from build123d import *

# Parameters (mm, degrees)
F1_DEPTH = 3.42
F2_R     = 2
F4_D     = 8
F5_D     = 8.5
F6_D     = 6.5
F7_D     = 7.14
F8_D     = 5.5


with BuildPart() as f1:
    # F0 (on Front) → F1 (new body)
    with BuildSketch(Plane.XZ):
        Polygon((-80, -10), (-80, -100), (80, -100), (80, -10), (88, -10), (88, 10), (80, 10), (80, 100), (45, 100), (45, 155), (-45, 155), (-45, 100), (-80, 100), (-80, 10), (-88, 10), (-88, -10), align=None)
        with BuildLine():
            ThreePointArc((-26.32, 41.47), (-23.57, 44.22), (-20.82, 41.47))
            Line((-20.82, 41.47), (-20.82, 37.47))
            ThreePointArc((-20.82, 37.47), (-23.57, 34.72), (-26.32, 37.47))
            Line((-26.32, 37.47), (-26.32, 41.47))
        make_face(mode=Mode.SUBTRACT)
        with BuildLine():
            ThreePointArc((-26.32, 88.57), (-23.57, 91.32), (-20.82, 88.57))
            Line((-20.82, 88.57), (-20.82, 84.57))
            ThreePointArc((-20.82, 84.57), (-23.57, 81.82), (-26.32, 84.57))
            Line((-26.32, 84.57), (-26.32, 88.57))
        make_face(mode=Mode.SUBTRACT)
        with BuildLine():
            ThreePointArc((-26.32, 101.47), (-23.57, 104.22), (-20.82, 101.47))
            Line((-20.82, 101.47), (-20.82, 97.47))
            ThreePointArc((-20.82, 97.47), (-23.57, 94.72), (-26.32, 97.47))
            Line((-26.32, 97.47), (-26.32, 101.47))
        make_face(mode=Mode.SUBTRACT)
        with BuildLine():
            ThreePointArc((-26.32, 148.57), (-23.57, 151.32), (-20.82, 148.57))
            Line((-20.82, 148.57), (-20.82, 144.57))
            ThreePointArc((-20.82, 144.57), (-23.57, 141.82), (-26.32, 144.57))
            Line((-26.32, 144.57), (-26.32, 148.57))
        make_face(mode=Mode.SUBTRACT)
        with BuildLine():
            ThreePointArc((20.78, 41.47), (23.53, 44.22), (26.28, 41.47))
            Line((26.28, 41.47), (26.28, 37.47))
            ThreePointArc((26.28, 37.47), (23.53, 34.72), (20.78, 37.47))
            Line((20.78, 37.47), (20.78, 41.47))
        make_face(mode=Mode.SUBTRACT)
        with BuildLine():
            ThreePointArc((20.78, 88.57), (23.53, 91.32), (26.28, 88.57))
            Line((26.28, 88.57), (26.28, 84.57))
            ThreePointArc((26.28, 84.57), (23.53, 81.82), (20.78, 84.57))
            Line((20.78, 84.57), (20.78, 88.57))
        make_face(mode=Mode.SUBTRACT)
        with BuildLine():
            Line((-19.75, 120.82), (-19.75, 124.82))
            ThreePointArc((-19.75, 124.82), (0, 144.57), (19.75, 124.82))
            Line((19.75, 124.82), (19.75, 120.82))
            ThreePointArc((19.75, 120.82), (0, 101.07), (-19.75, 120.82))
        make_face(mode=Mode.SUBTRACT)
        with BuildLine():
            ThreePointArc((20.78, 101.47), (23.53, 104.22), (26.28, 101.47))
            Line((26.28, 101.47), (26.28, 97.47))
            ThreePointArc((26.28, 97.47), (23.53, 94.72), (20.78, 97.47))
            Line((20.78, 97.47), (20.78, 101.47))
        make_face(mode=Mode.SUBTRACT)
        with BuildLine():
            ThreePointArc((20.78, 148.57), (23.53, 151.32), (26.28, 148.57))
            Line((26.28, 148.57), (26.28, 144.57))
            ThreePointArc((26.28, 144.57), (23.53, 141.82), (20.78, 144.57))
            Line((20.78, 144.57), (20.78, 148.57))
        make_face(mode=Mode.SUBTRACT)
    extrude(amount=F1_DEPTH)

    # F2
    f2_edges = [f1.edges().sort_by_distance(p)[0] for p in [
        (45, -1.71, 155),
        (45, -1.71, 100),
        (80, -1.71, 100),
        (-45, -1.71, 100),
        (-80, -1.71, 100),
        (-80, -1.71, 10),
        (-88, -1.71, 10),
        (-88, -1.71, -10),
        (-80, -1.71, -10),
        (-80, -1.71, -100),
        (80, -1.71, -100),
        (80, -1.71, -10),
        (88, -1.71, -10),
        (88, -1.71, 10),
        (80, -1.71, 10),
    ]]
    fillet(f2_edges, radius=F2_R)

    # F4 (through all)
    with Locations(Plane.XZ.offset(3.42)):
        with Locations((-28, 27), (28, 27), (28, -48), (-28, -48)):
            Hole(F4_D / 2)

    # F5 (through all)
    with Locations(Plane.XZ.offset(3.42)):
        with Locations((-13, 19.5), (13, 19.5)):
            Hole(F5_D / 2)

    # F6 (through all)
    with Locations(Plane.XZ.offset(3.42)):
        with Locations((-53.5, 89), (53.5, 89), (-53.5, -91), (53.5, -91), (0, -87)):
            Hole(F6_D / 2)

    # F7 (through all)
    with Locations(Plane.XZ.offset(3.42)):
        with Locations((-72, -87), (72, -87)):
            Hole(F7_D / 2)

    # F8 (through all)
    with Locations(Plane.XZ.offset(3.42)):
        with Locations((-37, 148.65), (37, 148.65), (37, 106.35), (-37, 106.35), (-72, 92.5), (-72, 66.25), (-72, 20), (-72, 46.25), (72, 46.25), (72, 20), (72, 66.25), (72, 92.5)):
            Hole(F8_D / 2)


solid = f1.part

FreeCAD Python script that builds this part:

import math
import FreeCAD as App
import Part
import Sketcher

V = App.Vector


def edges_at(feature, points):
    """Names of the edges that pass closest to the given points."""
    edges = feature.Shape.Edges
    near = lambda p: min(range(len(edges)), key=lambda i: edges[i].distToShape(Part.Vertex(*p))[0])
    return sorted({f"Edge{near(p) + 1}" for p in points})


def add_polygon(sketch, points):
    """Adds a closed chain of lines whose ends are joined by coincident constraints."""
    first, n = sketch.GeometryCount, len(points)
    for a, b in zip(points, points[1:] + points[:1]):
        sketch.addGeometry(Part.LineSegment(App.Vector(*a, 0), App.Vector(*b, 0)), False)
    for i in range(n):
        sketch.addConstraint(Sketcher.Constraint("Coincident", first + i, 2, first + (i + 1) % n, 1))

doc = App.newDocument("Part")
body = doc.addObject("PartDesign::Body", "Body")

# Sketch on XZ plane
sketch1 = body.newObject("Sketcher::SketchObject", "Sketch")
sketch1.AttachmentSupport = (doc.getObject("XZ_Plane"), [""])
sketch1.MapMode = "FlatFace"
add_polygon(sketch1, [(-80, -10), (-80, -100), (80, -100), (80, -10), (88, -10), (88, 10), (80, 10), (80, 100), (45, 100), (45, 155), (-45, 155), (-45, 100), (-80, 100), (-80, 10), (-88, 10), (-88, -10)])  # lines 0-15
sketch1.addGeometry(Part.LineSegment(V(-26.3, 37.5, 0), V(-26.3, 41.5, 0)), False)  # 16
sketch1.addGeometry(Part.ArcOfCircle(Part.Circle(V(-23.6, 41.5, 0), V(0, 0, 1), 2.8), math.radians(0), math.radians(180)), False)  # 17
sketch1.addGeometry(Part.LineSegment(V(-20.8, 41.5, 0), V(-20.8, 37.5, 0)), False)  # 18
sketch1.addGeometry(Part.ArcOfCircle(Part.Circle(V(-23.6, 37.5, 0), V(0, 0, 1), 2.8), math.radians(180), math.radians(360)), False)  # 19
sketch1.addGeometry(Part.LineSegment(V(-26.3, 84.6, 0), V(-26.3, 88.6, 0)), False)  # 20
sketch1.addGeometry(Part.ArcOfCircle(Part.Circle(V(-23.6, 88.6, 0), V(0, 0, 1), 2.8), math.radians(0), math.radians(180)), False)  # 21
sketch1.addGeometry(Part.LineSegment(V(-20.8, 88.6, 0), V(-20.8, 84.6, 0)), False)  # 22
sketch1.addGeometry(Part.ArcOfCircle(Part.Circle(V(-23.6, 84.6, 0), V(0, 0, 1), 2.8), math.radians(180), math.radians(360)), False)  # 23
sketch1.addGeometry(Part.LineSegment(V(20.8, 37.5, 0), V(20.8, 41.5, 0)), False)  # 24
sketch1.addGeometry(Part.ArcOfCircle(Part.Circle(V(23.5, 41.5, 0), V(0, 0, 1), 2.8), math.radians(0), math.radians(180)), False)  # 25
sketch1.addGeometry(Part.LineSegment(V(26.3, 41.5, 0), V(26.3, 37.5, 0)), False)  # 26
sketch1.addGeometry(Part.ArcOfCircle(Part.Circle(V(23.5, 37.5, 0), V(0, 0, 1), 2.8), math.radians(180), math.radians(360)), False)  # 27
sketch1.addGeometry(Part.LineSegment(V(20.8, 84.6, 0), V(20.8, 88.6, 0)), False)  # 28
sketch1.addGeometry(Part.ArcOfCircle(Part.Circle(V(23.5, 88.6, 0), V(0, 0, 1), 2.8), math.radians(0), math.radians(180)), False)  # 29
sketch1.addGeometry(Part.LineSegment(V(26.3, 88.6, 0), V(26.3, 84.6, 0)), False)  # 30
sketch1.addGeometry(Part.ArcOfCircle(Part.Circle(V(23.5, 84.6, 0), V(0, 0, 1), 2.8), math.radians(180), math.radians(360)), False)  # 31
sketch1.addGeometry(Part.LineSegment(V(-26.3, 97.5, 0), V(-26.3, 101.5, 0)), False)  # 32
sketch1.addGeometry(Part.ArcOfCircle(Part.Circle(V(-23.6, 101.5, 0), V(0, 0, 1), 2.8), math.radians(0), math.radians(180)), False)  # 33
sketch1.addGeometry(Part.LineSegment(V(-20.8, 101.5, 0), V(-20.8, 97.5, 0)), False)  # 34
sketch1.addGeometry(Part.ArcOfCircle(Part.Circle(V(-23.6, 97.5, 0), V(0, 0, 1), 2.8), math.radians(180), math.radians(360)), False)  # 35
sketch1.addGeometry(Part.LineSegment(V(-26.3, 144.6, 0), V(-26.3, 148.6, 0)), False)  # 36
sketch1.addGeometry(Part.ArcOfCircle(Part.Circle(V(-23.6, 148.6, 0), V(0, 0, 1), 2.8), math.radians(0), math.radians(180)), False)  # 37
sketch1.addGeometry(Part.LineSegment(V(-20.8, 148.6, 0), V(-20.8, 144.6, 0)), False)  # 38
sketch1.addGeometry(Part.ArcOfCircle(Part.Circle(V(-23.6, 144.6, 0), V(0, 0, 1), 2.8), math.radians(180), math.radians(360)), False)  # 39
sketch1.addGeometry(Part.LineSegment(V(20.8, 97.5, 0), V(20.8, 101.5, 0)), False)  # 40
sketch1.addGeometry(Part.ArcOfCircle(Part.Circle(V(23.5, 101.5, 0), V(0, 0, 1), 2.8), math.radians(0), math.radians(180)), False)  # 41
sketch1.addGeometry(Part.LineSegment(V(26.3, 101.5, 0), V(26.3, 97.5, 0)), False)  # 42
sketch1.addGeometry(Part.ArcOfCircle(Part.Circle(V(23.5, 97.5, 0), V(0, 0, 1), 2.8), math.radians(180), math.radians(360)), False)  # 43
sketch1.addGeometry(Part.ArcOfCircle(Part.Circle(V(0, 120.8, 0), V(0, 0, 1), 19.8), math.radians(180), math.radians(360)), False)  # 44
sketch1.addGeometry(Part.LineSegment(V(-19.8, 120.8, 0), V(-19.8, 124.8, 0)), False)  # 45
sketch1.addGeometry(Part.ArcOfCircle(Part.Circle(V(0, 124.8, 0), V(0, 0, 1), 19.8), math.radians(0), math.radians(180)), False)  # 46
sketch1.addGeometry(Part.LineSegment(V(19.8, 124.8, 0), V(19.8, 120.8, 0)), False)  # 47
sketch1.addGeometry(Part.LineSegment(V(20.8, 144.6, 0), V(20.8, 148.6, 0)), False)  # 48
sketch1.addGeometry(Part.ArcOfCircle(Part.Circle(V(23.5, 148.6, 0), V(0, 0, 1), 2.8), math.radians(0), math.radians(180)), False)  # 49
sketch1.addGeometry(Part.LineSegment(V(26.3, 148.6, 0), V(26.3, 144.6, 0)), False)  # 50
sketch1.addGeometry(Part.ArcOfCircle(Part.Circle(V(23.5, 144.6, 0), V(0, 0, 1), 2.8), math.radians(180), math.radians(360)), False)  # 51
sketch1.addConstraint([
    Sketcher.Constraint("Tangent", 16, 2, 17, 2),
    Sketcher.Constraint("Tangent", 17, 1, 18, 1),
    Sketcher.Constraint("Tangent", 18, 2, 19, 2),
    Sketcher.Constraint("Tangent", 19, 1, 16, 1),
    Sketcher.Constraint("Tangent", 20, 2, 21, 2),
    Sketcher.Constraint("Tangent", 21, 1, 22, 1),
    Sketcher.Constraint("Tangent", 22, 2, 23, 2),
    Sketcher.Constraint("Tangent", 23, 1, 20, 1),
    Sketcher.Constraint("Tangent", 24, 2, 25, 2),
    Sketcher.Constraint("Tangent", 25, 1, 26, 1),
    Sketcher.Constraint("Tangent", 26, 2, 27, 2),
    Sketcher.Constraint("Tangent", 27, 1, 24, 1),
    Sketcher.Constraint("Tangent", 28, 2, 29, 2),
    Sketcher.Constraint("Tangent", 29, 1, 30, 1),
    Sketcher.Constraint("Tangent", 30, 2, 31, 2),
    Sketcher.Constraint("Tangent", 31, 1, 28, 1),
    Sketcher.Constraint("Tangent", 32, 2, 33, 2),
    Sketcher.Constraint("Tangent", 33, 1, 34, 1),
    Sketcher.Constraint("Tangent", 34, 2, 35, 2),
    Sketcher.Constraint("Tangent", 35, 1, 32, 1),
    Sketcher.Constraint("Tangent", 36, 2, 37, 2),
    Sketcher.Constraint("Tangent", 37, 1, 38, 1),
    Sketcher.Constraint("Tangent", 38, 2, 39, 2),
    Sketcher.Constraint("Tangent", 39, 1, 36, 1),
    Sketcher.Constraint("Tangent", 40, 2, 41, 2),
    Sketcher.Constraint("Tangent", 41, 1, 42, 1),
    Sketcher.Constraint("Tangent", 42, 2, 43, 2),
    Sketcher.Constraint("Tangent", 43, 1, 40, 1),
    Sketcher.Constraint("Tangent", 44, 1, 45, 1),
    Sketcher.Constraint("Tangent", 45, 2, 46, 2),
    Sketcher.Constraint("Tangent", 46, 1, 47, 1),
    Sketcher.Constraint("Tangent", 47, 2, 44, 2),
    Sketcher.Constraint("Tangent", 48, 2, 49, 2),
    Sketcher.Constraint("Tangent", 49, 1, 50, 1),
    Sketcher.Constraint("Tangent", 50, 2, 51, 2),
    Sketcher.Constraint("Tangent", 51, 1, 48, 1),
    Sketcher.Constraint("Vertical", 0),
    Sketcher.Constraint("Horizontal", 1),
    Sketcher.Constraint("Vertical", 2),
    Sketcher.Constraint("Horizontal", 3),
    Sketcher.Constraint("Vertical", 4),
    Sketcher.Constraint("Horizontal", 5),
    Sketcher.Constraint("Vertical", 6),
    Sketcher.Constraint("Horizontal", 7),
    Sketcher.Constraint("Vertical", 8),
    Sketcher.Constraint("Horizontal", 9),
    Sketcher.Constraint("Vertical", 10),
    Sketcher.Constraint("Horizontal", 11),
    Sketcher.Constraint("Vertical", 12),
    Sketcher.Constraint("Horizontal", 13),
    Sketcher.Constraint("Vertical", 14),
    Sketcher.Constraint("Horizontal", 15),
    Sketcher.Constraint("Vertical", 16),
    Sketcher.Constraint("Vertical", 18),
    Sketcher.Constraint("Vertical", 20),
    Sketcher.Constraint("Vertical", 22),
    Sketcher.Constraint("Vertical", 24),
    Sketcher.Constraint("Vertical", 26),
    Sketcher.Constraint("Vertical", 28),
    Sketcher.Constraint("Vertical", 30),
    Sketcher.Constraint("Vertical", 32),
    Sketcher.Constraint("Vertical", 34),
    Sketcher.Constraint("Vertical", 36),
    Sketcher.Constraint("Vertical", 38),
    Sketcher.Constraint("Vertical", 40),
    Sketcher.Constraint("Vertical", 42),
    Sketcher.Constraint("Vertical", 45),
    Sketcher.Constraint("Vertical", 47),
    Sketcher.Constraint("Vertical", 48),
    Sketcher.Constraint("Vertical", 50),
    Sketcher.Constraint("Equal", 19, 21),
    Sketcher.Constraint("Equal", 23, 25),
    Sketcher.Constraint("Equal", 27, 29),
    Sketcher.Constraint("Equal", 31, 33),
    Sketcher.Constraint("Equal", 35, 37),
    Sketcher.Constraint("Equal", 39, 41),
    Sketcher.Constraint("Equal", 43, 49),
    Sketcher.Constraint("Symmetric", 0, 2, 6, 2, -1, 1),
    Sketcher.Constraint("Symmetric", 1, 2, 11, 2, -1, 1),
    Sketcher.Constraint("Symmetric", 3, 2, 13, 2, -1, 1),
    Sketcher.Constraint("Symmetric", 5, 2, 12, 2, -2),
    Sketcher.Constraint("PointOnObject", 44, 3, -2),
    Sketcher.Constraint("Horizontal", 17, 3, 25, 3),
    Sketcher.Constraint("Horizontal", 19, 3, 27, 3),
    Sketcher.Constraint("Horizontal", 21, 3, 29, 3),
    Sketcher.Constraint("Horizontal", 23, 3, 31, 3),
    Sketcher.Constraint("Horizontal", 33, 3, 41, 3),
    Sketcher.Constraint("Horizontal", 35, 3, 43, 3),
    Sketcher.Constraint("Horizontal", 37, 3, 49, 3),
    Sketcher.Constraint("Horizontal", 39, 3, 51, 3),
    Sketcher.Constraint("Horizontal", 3, 2, 14, 2),
    Sketcher.Constraint("Vertical", 19, 3, 21, 3),
    Sketcher.Constraint("Vertical", 27, 3, 29, 3),
    Sketcher.Constraint("Vertical", 23, 3, 33, 3),
    Sketcher.Constraint("Vertical", 35, 3, 37, 3),
    Sketcher.Constraint("Vertical", 31, 3, 41, 3),
    Sketcher.Constraint("Vertical", 43, 3, 49, 3),
    Sketcher.Constraint("Equal", 7, 11),
    Sketcher.Constraint("Equal", 9, 0),
    Sketcher.Constraint("Equal", 18, 20),
    Sketcher.Constraint("Equal", 30, 32),
    Sketcher.Constraint("Equal", 34, 36),
    Sketcher.Constraint("Equal", 42, 45),
    Sketcher.Constraint("DistanceX", 1, 1, 1, 2, 160.0),
    Sketcher.Constraint("DistanceX", 3, 1, 3, 2, 8.0),
    Sketcher.Constraint("DistanceX", 7, 2, 7, 1, 35.0),
    Sketcher.Constraint("DistanceY", 4, 1, 4, 2, 20.0),
    Sketcher.Constraint("DistanceY", 8, 1, 8, 2, 55.0),
    Sketcher.Constraint("DistanceY", 16, 1, 16, 2, 4.0),
    Sketcher.Constraint("Radius", 17, 2.75),
    Sketcher.Constraint("Radius", 44, 19.75),
    Sketcher.Constraint("DistanceX", 17, 3, -1, 1, 23.57),
    Sketcher.Constraint("DistanceY", -1, 1, 17, 3, 41.47),
    Sketcher.Constraint("DistanceY", -1, 1, 21, 3, 88.57),
    Sketcher.Constraint("DistanceX", -1, 1, 25, 3, 23.53),
    Sketcher.Constraint("DistanceY", -1, 1, 33, 3, 101.47),
    Sketcher.Constraint("DistanceY", -1, 1, 37, 3, 148.57),
    Sketcher.Constraint("DistanceY", -1, 1, 44, 3, 120.82),
])
pad1 = body.newObject("PartDesign::Pad", "Pad")
pad1.Profile = sketch1
pad1.Length = 3.42
doc.recompute()

fillet = body.newObject("PartDesign::Fillet", "Fillet")
fillet.Base = (pad1, edges_at(pad1, [
    (45, -1.71, 155),
    (45, -1.71, 100),
    (80, -1.71, 100),
    (-45, -1.71, 100),
    (-80, -1.71, 100),
    (-80, -1.71, 10),
    (-88, -1.71, 10),
    (-88, -1.71, -10),
    (-80, -1.71, -10),
    (-80, -1.71, -100),
    (80, -1.71, -100),
    (80, -1.71, -10),
    (88, -1.71, -10),
    (88, -1.71, 10),
    (80, -1.71, 10),
]))
fillet.Radius = 2

# Sketch on XZ plane
sketch2 = body.newObject("Sketcher::SketchObject", "Sketch001")
sketch2.AttachmentSupport = (doc.getObject("XZ_Plane"), [""])
sketch2.MapMode = "FlatFace"
sketch2.AttachmentOffset = App.Placement(V(0, 0, 3.42), App.Rotation())
sketch2.addGeometry([
    Part.Circle(V(-28, 27, 0), V(0, 0, 1), 4),
    Part.Circle(V(28, 27, 0), V(0, 0, 1), 4),
    Part.Circle(V(28, -48, 0), V(0, 0, 1), 4),
    Part.Circle(V(-28, -48, 0), V(0, 0, 1), 4),
], False)
sketch2.addConstraint([
    Sketcher.Constraint("Equal", 0, 1),
    Sketcher.Constraint("Equal", 1, 2),
    Sketcher.Constraint("Equal", 2, 3),
    Sketcher.Constraint("Symmetric", 0, 3, 1, 3, -2),
    Sketcher.Constraint("Symmetric", 2, 3, 3, 3, -2),
    Sketcher.Constraint("Vertical", 1, 3, 2, 3),
    Sketcher.Constraint("Diameter", 0, 8.0),
    Sketcher.Constraint("DistanceX", 0, 3, -1, 1, 28.0),
    Sketcher.Constraint("DistanceY", -1, 1, 0, 3, 27.0),
    Sketcher.Constraint("DistanceY", 2, 3, -1, 1, 48.0),
])
doc.recompute()
hole = body.newObject("PartDesign::Hole", "Hole")
hole.Profile = sketch2
hole.ThreadType = "None"
hole.Diameter = 8
hole.DepthType = "ThroughAll"

# Sketch on XZ plane
sketch3 = body.newObject("Sketcher::SketchObject", "Sketch002")
sketch3.AttachmentSupport = (doc.getObject("XZ_Plane"), [""])
sketch3.MapMode = "FlatFace"
sketch3.AttachmentOffset = App.Placement(V(0, 0, 3.42), App.Rotation())
sketch3.addGeometry([
    Part.Circle(V(-13, 19.5, 0), V(0, 0, 1), 4.2),
    Part.Circle(V(13, 19.5, 0), V(0, 0, 1), 4.2),
], False)
sketch3.addConstraint([
    Sketcher.Constraint("Equal", 0, 1),
    Sketcher.Constraint("Symmetric", 0, 3, 1, 3, -2),
    Sketcher.Constraint("Diameter", 0, 8.5),
    Sketcher.Constraint("DistanceX", 0, 3, -1, 1, 13.0),
    Sketcher.Constraint("DistanceY", -1, 1, 0, 3, 19.5),
])
doc.recompute()
hole2 = body.newObject("PartDesign::Hole", "Hole001")
hole2.Profile = sketch3
hole2.ThreadType = "None"
hole2.Diameter = 8.5
hole2.DepthType = "ThroughAll"

# Sketch on XZ plane
sketch4 = body.newObject("Sketcher::SketchObject", "Sketch003")
sketch4.AttachmentSupport = (doc.getObject("XZ_Plane"), [""])
sketch4.MapMode = "FlatFace"
sketch4.AttachmentOffset = App.Placement(V(0, 0, 3.42), App.Rotation())
sketch4.addGeometry([
    Part.Circle(V(-53.5, 89, 0), V(0, 0, 1), 3.2),  # 0
    Part.Circle(V(53.5, 89, 0), V(0, 0, 1), 3.2),  # 1
    Part.Circle(V(-53.5, -91, 0), V(0, 0, 1), 3.2),  # 2
    Part.Circle(V(53.5, -91, 0), V(0, 0, 1), 3.2),  # 3
    Part.Circle(V(0, -87, 0), V(0, 0, 1), 3.2),  # 4
], False)
sketch4.addConstraint([
    Sketcher.Constraint("Equal", 0, 1),
    Sketcher.Constraint("Equal", 1, 2),
    Sketcher.Constraint("Equal", 2, 3),
    Sketcher.Constraint("Equal", 3, 4),
    Sketcher.Constraint("Symmetric", 0, 3, 1, 3, -2),
    Sketcher.Constraint("Symmetric", 2, 3, 3, 3, -2),
    Sketcher.Constraint("PointOnObject", 4, 3, -2),
    Sketcher.Constraint("Vertical", 0, 3, 2, 3),
    Sketcher.Constraint("Diameter", 0, 6.5),
    Sketcher.Constraint("DistanceY", -1, 1, 0, 3, 89.0),
    Sketcher.Constraint("DistanceY", 2, 3, -1, 1, 91.0),
    Sketcher.Constraint("DistanceY", 4, 3, -1, 1, 87.0),
    Sketcher.Constraint("DistanceX", 0, 3, 1, 3, 107.0),
])
doc.recompute()
hole3 = body.newObject("PartDesign::Hole", "Hole002")
hole3.Profile = sketch4
hole3.ThreadType = "None"
hole3.Diameter = 6.5
hole3.DepthType = "ThroughAll"

# Sketch on XZ plane
sketch5 = body.newObject("Sketcher::SketchObject", "Sketch004")
sketch5.AttachmentSupport = (doc.getObject("XZ_Plane"), [""])
sketch5.MapMode = "FlatFace"
sketch5.AttachmentOffset = App.Placement(V(0, 0, 3.42), App.Rotation())
sketch5.addGeometry([
    Part.Circle(V(-72, -87, 0), V(0, 0, 1), 3.6),
    Part.Circle(V(72, -87, 0), V(0, 0, 1), 3.6),
], False)
sketch5.addConstraint([
    Sketcher.Constraint("Equal", 0, 1),
    Sketcher.Constraint("Symmetric", 0, 3, 1, 3, -2),
    Sketcher.Constraint("Diameter", 0, 7.14),
    Sketcher.Constraint("DistanceX", 0, 3, -1, 1, 72.0),
    Sketcher.Constraint("DistanceY", 0, 3, -1, 1, 87.0),
])
doc.recompute()
hole4 = body.newObject("PartDesign::Hole", "Hole003")
hole4.Profile = sketch5
hole4.ThreadType = "None"
hole4.Diameter = 7.14
hole4.DepthType = "ThroughAll"

# Sketch on XZ plane
sketch6 = body.newObject("Sketcher::SketchObject", "Sketch005")
sketch6.AttachmentSupport = (doc.getObject("XZ_Plane"), [""])
sketch6.MapMode = "FlatFace"
sketch6.AttachmentOffset = App.Placement(V(0, 0, 3.42), App.Rotation())
sketch6.addGeometry([
    Part.Circle(V(-37, 148.7, 0), V(0, 0, 1), 2.8),  # 0
    Part.Circle(V(37, 148.7, 0), V(0, 0, 1), 2.8),  # 1
    Part.Circle(V(37, 106.3, 0), V(0, 0, 1), 2.8),  # 2
    Part.Circle(V(-37, 106.3, 0), V(0, 0, 1), 2.8),  # 3
    Part.Circle(V(-72, 92.5, 0), V(0, 0, 1), 2.8),  # 4
    Part.Circle(V(-72, 66.2, 0), V(0, 0, 1), 2.8),  # 5
    Part.Circle(V(-72, 20, 0), V(0, 0, 1), 2.8),  # 6
    Part.Circle(V(-72, 46.2, 0), V(0, 0, 1), 2.8),  # 7
    Part.Circle(V(72, 46.2, 0), V(0, 0, 1), 2.8),  # 8
    Part.Circle(V(72, 20, 0), V(0, 0, 1), 2.8),  # 9
    Part.Circle(V(72, 66.2, 0), V(0, 0, 1), 2.8),  # 10
    Part.Circle(V(72, 92.5, 0), V(0, 0, 1), 2.8),  # 11
], False)
sketch6.addConstraint([
    Sketcher.Constraint("Equal", 0, 1),
    Sketcher.Constraint("Equal", 1, 2),
    Sketcher.Constraint("Equal", 2, 3),
    Sketcher.Constraint("Equal", 3, 4),
    Sketcher.Constraint("Equal", 4, 5),
    Sketcher.Constraint("Equal", 5, 6),
    Sketcher.Constraint("Equal", 6, 7),
    Sketcher.Constraint("Equal", 7, 8),
    Sketcher.Constraint("Equal", 8, 9),
    Sketcher.Constraint("Equal", 9, 10),
    Sketcher.Constraint("Equal", 10, 11),
    Sketcher.Constraint("Symmetric", 0, 3, 1, 3, -2),
    Sketcher.Constraint("Symmetric", 2, 3, 3, 3, -2),
    Sketcher.Constraint("Symmetric", 7, 3, 8, 3, -2),
    Sketcher.Constraint("Symmetric", 6, 3, 9, 3, -2),
    Sketcher.Constraint("Symmetric", 5, 3, 10, 3, -2),
    Sketcher.Constraint("Symmetric", 4, 3, 11, 3, -2),
    Sketcher.Constraint("Vertical", 1, 3, 2, 3),
    Sketcher.Constraint("Vertical", 4, 3, 5, 3),
    Sketcher.Constraint("Vertical", 5, 3, 6, 3),
    Sketcher.Constraint("Vertical", 6, 3, 7, 3),
    Sketcher.Constraint("Diameter", 0, 5.5),
    Sketcher.Constraint("DistanceX", 0, 3, -1, 1, 37.0),
    Sketcher.Constraint("DistanceX", 4, 3, -1, 1, 72.0),
    Sketcher.Constraint("DistanceY", -1, 1, 6, 3, 20.0),
    Sketcher.Constraint("DistanceY", 7, 3, 5, 3, 20.0),
    Sketcher.Constraint("DistanceY", -1, 1, 4, 3, 92.5),
    Sketcher.Constraint("DistanceY", 2, 3, 1, 3, 42.3),
    Sketcher.Constraint("DistanceY", 5, 3, 3, 3, 40.1),
    Sketcher.Constraint("DistanceY", -1, 1, 0, 3, 148.65),
])
doc.recompute()
hole5 = body.newObject("PartDesign::Hole", "Hole004")
hole5.Profile = sketch6
hole5.ThreadType = "None"
hole5.Diameter = 5.5
hole5.DepthType = "ThroughAll"

doc.recompute()
